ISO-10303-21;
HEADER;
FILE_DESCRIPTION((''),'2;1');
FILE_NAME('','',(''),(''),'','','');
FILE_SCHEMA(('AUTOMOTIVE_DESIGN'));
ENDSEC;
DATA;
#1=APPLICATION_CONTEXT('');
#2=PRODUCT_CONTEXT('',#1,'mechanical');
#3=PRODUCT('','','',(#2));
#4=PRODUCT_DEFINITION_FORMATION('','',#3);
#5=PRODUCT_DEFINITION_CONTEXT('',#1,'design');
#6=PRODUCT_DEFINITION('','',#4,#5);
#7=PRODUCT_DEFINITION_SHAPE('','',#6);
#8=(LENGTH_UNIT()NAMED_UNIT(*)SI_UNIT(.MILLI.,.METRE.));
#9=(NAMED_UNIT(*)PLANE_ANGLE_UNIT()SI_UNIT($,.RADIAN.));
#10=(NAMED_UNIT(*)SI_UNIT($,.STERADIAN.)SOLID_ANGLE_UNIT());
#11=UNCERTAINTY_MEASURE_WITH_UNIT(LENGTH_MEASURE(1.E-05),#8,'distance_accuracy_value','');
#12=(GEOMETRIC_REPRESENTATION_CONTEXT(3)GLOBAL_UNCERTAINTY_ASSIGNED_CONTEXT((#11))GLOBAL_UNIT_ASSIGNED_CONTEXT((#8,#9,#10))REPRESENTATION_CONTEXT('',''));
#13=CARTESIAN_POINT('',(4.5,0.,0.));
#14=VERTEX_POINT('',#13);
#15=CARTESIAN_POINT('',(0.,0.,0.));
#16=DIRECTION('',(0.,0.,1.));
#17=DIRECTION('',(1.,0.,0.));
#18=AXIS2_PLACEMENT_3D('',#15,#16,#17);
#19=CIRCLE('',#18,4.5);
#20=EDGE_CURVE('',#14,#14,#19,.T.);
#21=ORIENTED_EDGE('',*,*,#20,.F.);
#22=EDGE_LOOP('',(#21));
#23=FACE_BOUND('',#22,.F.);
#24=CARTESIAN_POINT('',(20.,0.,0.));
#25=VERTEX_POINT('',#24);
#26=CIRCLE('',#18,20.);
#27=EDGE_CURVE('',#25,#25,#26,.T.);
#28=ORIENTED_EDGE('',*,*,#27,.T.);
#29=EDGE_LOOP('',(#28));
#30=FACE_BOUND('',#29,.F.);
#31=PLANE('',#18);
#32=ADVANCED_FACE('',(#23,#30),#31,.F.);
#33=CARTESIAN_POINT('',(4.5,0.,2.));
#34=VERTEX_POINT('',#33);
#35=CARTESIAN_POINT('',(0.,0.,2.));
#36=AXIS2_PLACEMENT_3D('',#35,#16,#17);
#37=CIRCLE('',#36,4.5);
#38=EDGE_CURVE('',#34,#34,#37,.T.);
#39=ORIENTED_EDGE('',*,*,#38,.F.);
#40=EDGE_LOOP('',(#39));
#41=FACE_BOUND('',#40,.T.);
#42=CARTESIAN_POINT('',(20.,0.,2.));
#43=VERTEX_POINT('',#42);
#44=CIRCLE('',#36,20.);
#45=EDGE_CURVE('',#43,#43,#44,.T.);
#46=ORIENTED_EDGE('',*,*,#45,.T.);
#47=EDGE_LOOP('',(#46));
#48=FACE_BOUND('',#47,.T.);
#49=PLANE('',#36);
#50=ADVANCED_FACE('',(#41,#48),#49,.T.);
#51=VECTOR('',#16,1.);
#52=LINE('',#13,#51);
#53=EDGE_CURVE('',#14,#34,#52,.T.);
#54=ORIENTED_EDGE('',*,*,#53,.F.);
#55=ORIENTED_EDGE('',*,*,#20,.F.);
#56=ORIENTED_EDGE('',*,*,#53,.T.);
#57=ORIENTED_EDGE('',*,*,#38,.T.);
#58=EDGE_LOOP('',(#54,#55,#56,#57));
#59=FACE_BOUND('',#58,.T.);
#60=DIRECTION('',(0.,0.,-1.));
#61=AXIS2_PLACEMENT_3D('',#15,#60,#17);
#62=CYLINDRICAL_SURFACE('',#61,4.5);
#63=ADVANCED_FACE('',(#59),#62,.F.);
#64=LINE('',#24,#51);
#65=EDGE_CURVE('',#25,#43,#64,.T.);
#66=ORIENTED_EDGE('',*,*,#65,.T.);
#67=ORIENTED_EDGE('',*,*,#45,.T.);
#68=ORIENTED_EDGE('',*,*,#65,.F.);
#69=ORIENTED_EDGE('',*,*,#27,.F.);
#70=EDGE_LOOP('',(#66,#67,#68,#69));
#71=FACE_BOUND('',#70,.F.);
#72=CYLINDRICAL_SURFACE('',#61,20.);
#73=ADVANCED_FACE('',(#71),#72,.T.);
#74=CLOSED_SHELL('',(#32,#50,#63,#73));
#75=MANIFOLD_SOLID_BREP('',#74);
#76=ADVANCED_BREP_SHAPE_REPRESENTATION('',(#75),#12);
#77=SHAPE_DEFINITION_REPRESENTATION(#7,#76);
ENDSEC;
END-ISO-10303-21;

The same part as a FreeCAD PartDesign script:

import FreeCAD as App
import Part
import Sketcher

V = App.Vector
Q = App.Units.Quantity

doc = App.newDocument("Part")
body = doc.addObject("PartDesign::Body", "Body")

# Sketch on XY plane
sketch1 = body.newObject("Sketcher::SketchObject", "Sketch")
sketch1.AttachmentSupport = (doc.getObject("XY_Plane"), [""])
sketch1.MapMode = "FlatFace"
sketch1.addGeometry([
    Part.Circle(V(0, 0, 0), V(0, 0, 1), 20),
    Part.Circle(V(0, 0, 0), V(0, 0, 1), 4.5),
], False)
sketch1.addConstraint([
    Sketcher.Constraint("Coincident", 0, 3, -1, 1),
    Sketcher.Constraint("Coincident", 1, 3, -1, 1),
    Sketcher.Constraint("Diameter", 0, Q("40 mm")),
    Sketcher.Constraint("Diameter", 1, Q("9 mm")),
])
pad1 = body.newObject("PartDesign::Pad", "Pad")
pad1.Profile = sketch1
pad1.Length = 2

doc.recompute()
